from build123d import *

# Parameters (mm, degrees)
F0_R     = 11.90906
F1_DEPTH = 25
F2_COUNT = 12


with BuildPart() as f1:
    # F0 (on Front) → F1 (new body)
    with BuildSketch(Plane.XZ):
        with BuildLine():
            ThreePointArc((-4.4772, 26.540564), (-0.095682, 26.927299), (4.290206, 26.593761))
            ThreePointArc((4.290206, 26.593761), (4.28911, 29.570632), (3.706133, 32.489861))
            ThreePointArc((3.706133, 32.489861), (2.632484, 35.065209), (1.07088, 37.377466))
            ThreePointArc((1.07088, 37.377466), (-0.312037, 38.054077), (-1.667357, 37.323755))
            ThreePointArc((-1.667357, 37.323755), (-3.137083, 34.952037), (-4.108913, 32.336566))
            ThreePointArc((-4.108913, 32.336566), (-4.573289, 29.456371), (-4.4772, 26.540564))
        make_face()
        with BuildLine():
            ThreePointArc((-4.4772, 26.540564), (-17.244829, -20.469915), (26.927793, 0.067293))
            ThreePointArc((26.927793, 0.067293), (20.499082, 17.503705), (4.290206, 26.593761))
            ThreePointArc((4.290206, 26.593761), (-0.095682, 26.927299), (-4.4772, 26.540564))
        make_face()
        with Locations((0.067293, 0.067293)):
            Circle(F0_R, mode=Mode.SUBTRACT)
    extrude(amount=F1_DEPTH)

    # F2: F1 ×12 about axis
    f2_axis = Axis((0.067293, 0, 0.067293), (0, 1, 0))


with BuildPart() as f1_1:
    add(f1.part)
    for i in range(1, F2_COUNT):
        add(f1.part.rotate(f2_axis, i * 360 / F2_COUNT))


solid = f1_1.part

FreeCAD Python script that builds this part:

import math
import FreeCAD as App
import Part
import Sketcher
Q = App.Units.Quantity

doc = App.newDocument("Part")
body = doc.addObject("PartDesign::Body", "Body")

# Sketch on XZ plane
sketch1 = doc.addObject("Sketcher::SketchObject", "Sketch")
body.addObject(sketch1)
sketch1.AttachmentSupport = (doc.XZ_Plane, [""])
sketch1.MapMode = "FlatFace"
sketch1.addGeometry(Part.ArcOfCircle(Part.Circle(App.Vector(-10.792401, 28.076644, 0), App.Vector(0, 0, 1), 15.155328), math.radians(-5.615126), math.radians(16.929755)), False)
sketch1.addGeometry(Part.ArcOfCircle(Part.Circle(App.Vector(-9.728688, 28.400428, 0), App.Vector(0, 0, 1), 14.043428), math.radians(16.929754), math.radians(39.73473)), False)
sketch1.addGeometry(Part.ArcOfCircle(Part.Circle(App.Vector(-0.279004, 36.370023, 0), App.Vector(0, 0, 1), 1.684378), math.radians(36.734637), math.radians(145.512808)), False)
sketch1.addGeometry(Part.ArcOfCircle(Part.Circle(App.Vector(9.475967, 28.777122, 0), App.Vector(0, 0, 1), 14.043455), math.radians(142.512754), math.radians(165.317689)), False)
sketch1.addGeometry(Part.ArcOfCircle(Part.Circle(App.Vector(10.551546, 28.495316, 0), App.Vector(0, 0, 1), 15.155338), math.radians(165.317733), math.radians(187.410717)), False)
sketch1.addGeometry(Part.ArcOfCircle(Part.Circle(App.Vector(0.067293, 0.067293, 0), App.Vector(0, 0, 1), 26.8605), math.radians(99.740651), math.radians(359.999999)), False)
sketch1.addGeometry(Part.ArcOfCircle(Part.Circle(App.Vector(0.067292, 0.067293, 0), App.Vector(0, 0, 1), 26.860501), math.radians(0.000001), math.radians(80.954631)), False)
sketch1.addGeometry(Part.Circle(App.Vector(0.067293, 0.067293, 0), App.Vector(0, 0, 1), 11.90906), False)
sketch1.addConstraint(Sketcher.Constraint("Coincident", 0, 2, 1, 1))
sketch1.addConstraint(Sketcher.Constraint("Coincident", 1, 2, 2, 1))
sketch1.addConstraint(Sketcher.Constraint("Coincident", 2, 2, 3, 1))
sketch1.addConstraint(Sketcher.Constraint("Coincident", 3, 2, 4, 1))
sketch1.addConstraint(Sketcher.Constraint("Coincident", 4, 2, 5, 1))
sketch1.addConstraint(Sketcher.Constraint("Coincident", 5, 2, 6, 1))
sketch1.addConstraint(Sketcher.Constraint("Coincident", 6, 2, 0, 1))
sketch1.addConstraint(Sketcher.Constraint("Coincident", 6, 3, 5, 3))
sketch1.addConstraint(Sketcher.Constraint("Coincident", 7, 3, 5, 3))
sketch1.addConstraint(Sketcher.Constraint("Radius", 5, Q("1.0575 in")))
sketch1.addConstraint(Sketcher.Constraint("Diameter", 7, Q("23.81812 mm")))
sketch1.addConstraint(Sketcher.Constraint("Radius", 0, Q("15.155328 mm")))
sketch1.addConstraint(Sketcher.Constraint("Radius", 1, Q("14.043428 mm")))
sketch1.addConstraint(Sketcher.Constraint("Radius", 4, Q("15.155338 mm")))
sketch1.addConstraint(Sketcher.Constraint("Radius", 2, Q("1.684378 mm")))
sketch1.addConstraint(Sketcher.Constraint("Radius", 3, Q("14.043455 mm")))
sketch1.addConstraint(Sketcher.Constraint("DistanceX", 0, 3, -1, 1, Q("10.792401 mm")))
sketch1.addConstraint(Sketcher.Constraint("DistanceX", 4, 2, -1, 1, Q("4.4772 mm")))
sketch1.addConstraint(Sketcher.Constraint("DistanceY", 3, 3, 2, 3, Q("7.592902 mm")))
sketch1.addConstraint(Sketcher.Constraint("DistanceY", 3, 2, 1, 2, Q("5.0409 mm")))
sketch1.addConstraint(Sketcher.Constraint("DistanceY", 6, 2, 0, 2, Q("5.8961 mm")))
sketch1.addConstraint(Sketcher.Constraint("DistanceY", -1, 1, 1, 3, Q("28.400428 mm")))
sketch1.addConstraint(Sketcher.Constraint("DistanceY", -1, 1, 3, 3, Q("28.777122 mm")))
sketch1.addConstraint(Sketcher.Constraint("DistanceX", -1, 1, 6, 3, Q("0.067292 mm")))
sketch1.addConstraint(Sketcher.Constraint("DistanceY", -1, 1, 0, 2, Q("32.489861 mm")))
sketch1.addConstraint(Sketcher.Constraint("DistanceX", -1, 1, 1, 2, Q("1.07088 mm")))
sketch1.addConstraint(Sketcher.Constraint("DistanceY", 0, 3, 2, 3, Q("8.29338 mm")))
sketch1.addConstraint(Sketcher.Constraint("DistanceX", 2, 3, 3, 3, Q("9.754971 mm")))
sketch1.addConstraint(Sketcher.Constraint("DistanceY", 5, 2, 3, 3, Q("28.709829 mm")))
pad1 = doc.addObject("PartDesign::Pad", "Pad")
body.addObject(pad1)
pad1.Profile = sketch1
pad1.Length = 25
body2 = doc.addObject("PartDesign::Body", "Body001")
doc.recompute()

body2.BaseFeature = body
doc.recompute()

body3 = doc.addObject("PartDesign::Body", "Body002")
body3.BaseFeature = body
body3.Placement = App.Placement(App.Vector(-0.024631, 0, 0.042662), App.Rotation(App.Vector(0, 1, 0), 30))
boolean = doc.addObject("PartDesign::Boolean", "Boolean")
body2.addObject(boolean)
boolean.Type = "Fuse"
boolean.addObjects([body3])
doc.recompute()

body4 = doc.addObject("PartDesign::Body", "Body003")
body4.BaseFeature = body
body4.Placement = App.Placement(App.Vector(-0.024631, 0, 0.091924), App.Rotation(App.Vector(0, 1, 0), 60))
boolean2 = doc.addObject("PartDesign::Boolean", "Boolean001")
body2.addObject(boolean2)
boolean2.Type = "Fuse"
boolean2.addObjects([body4])
doc.recompute()

body5 = doc.addObject("PartDesign::Body", "Body004")
body5.BaseFeature = body
body5.Placement = App.Placement(App.Vector(0, 0, 0.134586), App.Rotation(App.Vector(0, 1, 0), 90))
boolean3 = doc.addObject("PartDesign::Boolean", "Boolean002")
body2.addObject(boolean3)
boolean3.Type = "Fuse"
boolean3.addObjects([body5])
doc.recompute()

body6 = doc.addObject("PartDesign::Body", "Body005")
body6.BaseFeature = body
body6.Placement = App.Placement(App.Vector(0.042662, 0, 0.159217), App.Rotation(App.Vector(0, 1, 0), 120))
boolean4 = doc.addObject("PartDesign::Boolean", "Boolean003")
body2.addObject(boolean4)
boolean4.Type = "Fuse"
boolean4.addObjects([body6])
doc.recompute()

body7 = doc.addObject("PartDesign::Body", "Body006")
body7.BaseFeature = body
body7.Placement = App.Placement(App.Vector(0.091924, 0, 0.159217), App.Rotation(App.Vector(0, 1, 0), 150))
boolean5 = doc.addObject("PartDesign::Boolean", "Boolean004")
body2.addObject(boolean5)
boolean5.Type = "Fuse"
boolean5.addObjects([body7])
doc.recompute()

body8 = doc.addObject("PartDesign::Body", "Body007")
body8.BaseFeature = body
body8.Placement = App.Placement(App.Vector(0.134586, 0, 0.134586), App.Rotation(App.Vector(0, 1, 0), 180))
boolean6 = doc.addObject("PartDesign::Boolean", "Boolean005")
body2.addObject(boolean6)
boolean6.Type = "Fuse"
boolean6.addObjects([body8])
doc.recompute()

body9 = doc.addObject("PartDesign::Body", "Body008")
body9.BaseFeature = body
body9.Placement = App.Placement(App.Vector(0.159217, 0, 0.091924), App.Rotation(App.Vector(0, 1, 0), 210))
boolean7 = doc.addObject("PartDesign::Boolean", "Boolean006")
body2.addObject(boolean7)
boolean7.Type = "Fuse"
boolean7.addObjects([body9])
doc.recompute()

body10 = doc.addObject("PartDesign::Body", "Body009")
body10.BaseFeature = body
body10.Placement = App.Placement(App.Vector(0.159217, 0, 0.042662), App.Rotation(App.Vector(0, 1, 0), 240))
boolean8 = doc.addObject("PartDesign::Boolean", "Boolean007")
body2.addObject(boolean8)
boolean8.Type = "Fuse"
boolean8.addObjects([body10])
doc.recompute()

body11 = doc.addObject("PartDesign::Body", "Body010")
body11.BaseFeature = body
body11.Placement = App.Placement(App.Vector(0.134586, 0, 0), App.Rotation(App.Vector(0, 1, 0), 270))
boolean9 = doc.addObject("PartDesign::Boolean", "Boolean008")
body2.addObject(boolean9)
boolean9.Type = "Fuse"
boolean9.addObjects([body11])
doc.recompute()

body12 = doc.addObject("PartDesign::Body", "Body011")
body12.BaseFeature = body
body12.Placement = App.Placement(App.Vector(0.091924, 0, -0.024631), App.Rotation(App.Vector(0, 1, 0), 300))
boolean10 = doc.addObject("PartDesign::Boolean", "Boolean009")
body2.addObject(boolean10)
boolean10.Type = "Fuse"
boolean10.addObjects([body12])
doc.recompute()

body.Placement = App.Placement(App.Vector(0.042662, 0, -0.024631), App.Rotation(App.Vector(0, 1, 0), 330))
boolean11 = doc.addObject("PartDesign::Boolean", "Boolean010")
body2.addObject(boolean11)
boolean11.Type = "Fuse"
boolean11.addObjects([body])

doc.recompute()
